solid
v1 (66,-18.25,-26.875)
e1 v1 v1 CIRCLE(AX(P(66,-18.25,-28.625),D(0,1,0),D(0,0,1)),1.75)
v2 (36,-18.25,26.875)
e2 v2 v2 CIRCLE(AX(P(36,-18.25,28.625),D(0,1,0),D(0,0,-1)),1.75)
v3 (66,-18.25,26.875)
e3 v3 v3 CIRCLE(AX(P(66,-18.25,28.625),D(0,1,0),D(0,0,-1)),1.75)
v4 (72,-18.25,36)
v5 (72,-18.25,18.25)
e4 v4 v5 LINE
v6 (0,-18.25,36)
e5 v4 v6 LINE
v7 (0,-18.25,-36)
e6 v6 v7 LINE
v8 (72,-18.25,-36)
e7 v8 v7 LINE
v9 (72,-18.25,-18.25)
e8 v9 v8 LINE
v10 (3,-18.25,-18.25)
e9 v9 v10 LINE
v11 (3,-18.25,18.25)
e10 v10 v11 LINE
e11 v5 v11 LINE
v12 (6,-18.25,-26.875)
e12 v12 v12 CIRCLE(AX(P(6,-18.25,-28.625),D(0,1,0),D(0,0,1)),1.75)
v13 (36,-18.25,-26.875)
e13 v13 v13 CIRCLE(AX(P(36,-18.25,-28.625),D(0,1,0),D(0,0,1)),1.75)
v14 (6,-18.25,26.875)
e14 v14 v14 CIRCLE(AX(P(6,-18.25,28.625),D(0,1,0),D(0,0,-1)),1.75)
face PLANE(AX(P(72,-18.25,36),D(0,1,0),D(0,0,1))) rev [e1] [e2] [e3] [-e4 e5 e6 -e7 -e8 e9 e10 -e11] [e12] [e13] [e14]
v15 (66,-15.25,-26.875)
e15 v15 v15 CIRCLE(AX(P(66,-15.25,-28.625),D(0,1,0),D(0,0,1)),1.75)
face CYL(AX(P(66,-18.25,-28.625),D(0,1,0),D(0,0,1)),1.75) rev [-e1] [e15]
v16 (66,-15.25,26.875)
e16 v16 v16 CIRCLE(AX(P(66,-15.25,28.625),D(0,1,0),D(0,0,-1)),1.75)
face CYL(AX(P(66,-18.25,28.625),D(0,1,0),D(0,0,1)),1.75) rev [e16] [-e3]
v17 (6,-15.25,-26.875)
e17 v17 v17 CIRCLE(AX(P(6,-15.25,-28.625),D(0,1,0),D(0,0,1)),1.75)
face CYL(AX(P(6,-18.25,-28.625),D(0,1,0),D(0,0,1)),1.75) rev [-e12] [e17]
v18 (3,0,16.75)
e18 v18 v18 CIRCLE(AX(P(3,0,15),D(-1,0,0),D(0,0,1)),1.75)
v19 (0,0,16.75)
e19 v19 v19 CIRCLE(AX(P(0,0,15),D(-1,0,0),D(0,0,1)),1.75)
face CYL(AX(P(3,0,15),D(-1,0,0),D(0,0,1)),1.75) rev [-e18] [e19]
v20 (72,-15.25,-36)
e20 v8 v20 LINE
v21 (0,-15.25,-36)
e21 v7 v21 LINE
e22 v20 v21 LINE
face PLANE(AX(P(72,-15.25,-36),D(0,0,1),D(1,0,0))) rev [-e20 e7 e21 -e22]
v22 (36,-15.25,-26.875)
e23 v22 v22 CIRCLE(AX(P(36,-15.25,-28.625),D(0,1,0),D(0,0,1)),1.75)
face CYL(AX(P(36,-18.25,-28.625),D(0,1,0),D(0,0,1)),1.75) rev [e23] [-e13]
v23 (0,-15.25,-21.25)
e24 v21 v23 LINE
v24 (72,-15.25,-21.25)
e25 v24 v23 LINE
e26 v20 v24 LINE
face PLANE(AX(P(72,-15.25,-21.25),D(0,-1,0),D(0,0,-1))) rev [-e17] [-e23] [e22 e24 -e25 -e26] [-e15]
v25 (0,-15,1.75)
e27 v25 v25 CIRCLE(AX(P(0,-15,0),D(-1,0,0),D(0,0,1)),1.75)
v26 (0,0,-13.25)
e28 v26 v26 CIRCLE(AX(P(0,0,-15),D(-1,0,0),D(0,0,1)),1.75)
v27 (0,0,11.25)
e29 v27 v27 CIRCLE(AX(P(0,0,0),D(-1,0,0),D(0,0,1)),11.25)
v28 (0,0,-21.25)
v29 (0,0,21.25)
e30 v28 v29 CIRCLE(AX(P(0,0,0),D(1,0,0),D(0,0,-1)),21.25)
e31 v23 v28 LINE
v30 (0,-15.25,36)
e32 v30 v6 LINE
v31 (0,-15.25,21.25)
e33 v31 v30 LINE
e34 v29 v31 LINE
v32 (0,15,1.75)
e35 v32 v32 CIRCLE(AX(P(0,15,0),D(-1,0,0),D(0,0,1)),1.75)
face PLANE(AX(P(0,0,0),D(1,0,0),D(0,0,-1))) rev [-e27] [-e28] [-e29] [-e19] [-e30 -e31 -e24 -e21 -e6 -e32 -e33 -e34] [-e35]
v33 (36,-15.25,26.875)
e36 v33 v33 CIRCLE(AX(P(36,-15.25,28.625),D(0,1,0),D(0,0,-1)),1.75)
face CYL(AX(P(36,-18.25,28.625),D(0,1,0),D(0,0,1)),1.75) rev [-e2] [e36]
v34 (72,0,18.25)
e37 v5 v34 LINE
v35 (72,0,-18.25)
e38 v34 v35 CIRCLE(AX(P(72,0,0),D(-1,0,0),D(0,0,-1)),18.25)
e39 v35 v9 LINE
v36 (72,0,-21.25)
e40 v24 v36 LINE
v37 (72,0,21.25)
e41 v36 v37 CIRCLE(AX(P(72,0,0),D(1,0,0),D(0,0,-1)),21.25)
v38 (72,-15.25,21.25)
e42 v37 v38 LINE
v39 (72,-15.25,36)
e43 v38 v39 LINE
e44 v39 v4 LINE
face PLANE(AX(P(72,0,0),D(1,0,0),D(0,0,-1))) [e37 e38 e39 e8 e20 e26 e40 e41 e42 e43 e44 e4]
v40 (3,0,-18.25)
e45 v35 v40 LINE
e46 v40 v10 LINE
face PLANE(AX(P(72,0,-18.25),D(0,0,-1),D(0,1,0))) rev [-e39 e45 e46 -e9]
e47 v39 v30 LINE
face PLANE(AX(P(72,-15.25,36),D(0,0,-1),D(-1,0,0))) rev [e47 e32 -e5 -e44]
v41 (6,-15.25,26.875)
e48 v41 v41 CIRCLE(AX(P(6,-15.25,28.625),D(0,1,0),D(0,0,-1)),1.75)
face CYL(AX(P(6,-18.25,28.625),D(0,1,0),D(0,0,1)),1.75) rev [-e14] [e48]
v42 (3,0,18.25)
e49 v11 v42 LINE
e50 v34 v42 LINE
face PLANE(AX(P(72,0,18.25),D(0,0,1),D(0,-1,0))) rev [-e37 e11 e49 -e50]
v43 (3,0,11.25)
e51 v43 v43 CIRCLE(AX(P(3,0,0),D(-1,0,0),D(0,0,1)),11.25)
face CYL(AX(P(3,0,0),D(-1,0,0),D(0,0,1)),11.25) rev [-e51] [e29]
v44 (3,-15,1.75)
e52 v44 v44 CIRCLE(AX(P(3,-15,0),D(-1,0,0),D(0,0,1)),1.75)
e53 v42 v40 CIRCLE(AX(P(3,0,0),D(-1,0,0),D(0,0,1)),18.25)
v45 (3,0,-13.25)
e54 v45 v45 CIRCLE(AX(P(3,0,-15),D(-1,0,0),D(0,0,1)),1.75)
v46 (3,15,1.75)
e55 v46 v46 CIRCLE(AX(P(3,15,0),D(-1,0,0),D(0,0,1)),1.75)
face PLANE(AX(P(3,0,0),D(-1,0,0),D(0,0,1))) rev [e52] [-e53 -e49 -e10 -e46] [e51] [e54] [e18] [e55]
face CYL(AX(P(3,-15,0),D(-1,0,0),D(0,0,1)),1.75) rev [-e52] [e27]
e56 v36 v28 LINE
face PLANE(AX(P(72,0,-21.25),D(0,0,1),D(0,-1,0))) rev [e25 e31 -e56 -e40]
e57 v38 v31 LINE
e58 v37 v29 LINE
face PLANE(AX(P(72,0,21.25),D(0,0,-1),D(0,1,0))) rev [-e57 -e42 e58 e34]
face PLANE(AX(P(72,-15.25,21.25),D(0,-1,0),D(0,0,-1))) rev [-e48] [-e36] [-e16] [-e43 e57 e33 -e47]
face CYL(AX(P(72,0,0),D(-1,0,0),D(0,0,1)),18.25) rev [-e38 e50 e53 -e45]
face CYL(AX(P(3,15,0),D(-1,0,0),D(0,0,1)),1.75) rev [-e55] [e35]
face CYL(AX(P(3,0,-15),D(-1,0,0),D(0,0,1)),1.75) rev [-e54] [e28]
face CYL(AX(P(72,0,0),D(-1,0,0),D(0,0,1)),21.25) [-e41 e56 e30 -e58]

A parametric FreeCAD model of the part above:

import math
import FreeCAD as App
import Part
import Sketcher
from FreeCAD import Vector

doc = App.newDocument("Part")
body = doc.addObject("PartDesign::Body", "Body")

# Sketch on YZ plane
sketch1 = doc.addObject("Sketcher::SketchObject", "Sketch")
body.addObject(sketch1)
sketch1.AttachmentSupport = (doc.YZ_Plane, [""])
sketch1.MapMode = "FlatFace"
sketch1.addGeometry(Part.LineSegment(Vector(0, -18.2, 0), Vector(-18.2, -18.2, 0)), False)
sketch1.addGeometry(Part.LineSegment(Vector(-18.2, -18.2, 0), Vector(-18.2, -36, 0)), False)
sketch1.addGeometry(Part.LineSegment(Vector(-18.2, -36, 0), Vector(-15.2, -36, 0)), False)
sketch1.addGeometry(Part.LineSegment(Vector(-15.2, -36, 0), Vector(-15.2, -21.2, 0)), False)
sketch1.addGeometry(Part.LineSegment(Vector(-15.2, -21.2, 0), Vector(0, -21.2, 0)), False)
sketch1.addGeometry(Part.ArcOfCircle(Part.Circle(Vector(0, 0, 0), Vector(0, 0, 1), 21.2), math.radians(-90), math.radians(90)), False)
sketch1.addGeometry(Part.LineSegment(Vector(0, 21.2, 0), Vector(-15.2, 21.2, 0)), False)
sketch1.addGeometry(Part.LineSegment(Vector(-15.2, 21.2, 0), Vector(-15.2, 36, 0)), False)
sketch1.addGeometry(Part.LineSegment(Vector(-15.2, 36, 0), Vector(-18.2, 36, 0)), False)
sketch1.addGeometry(Part.LineSegment(Vector(-18.2, 36, 0), Vector(-18.2, 18.2, 0)), False)
sketch1.addGeometry(Part.LineSegment(Vector(-18.2, 18.2, 0), Vector(0, 18.2, 0)), False)
sketch1.addGeometry(Part.ArcOfCircle(Part.Circle(Vector(0, 0, 0), Vector(0, 0, 1), 18.2), math.radians(-90), math.radians(90)), False)
sketch1.addConstraint(Sketcher.Constraint("Coincident", 0, 2, 1, 1))
sketch1.addConstraint(Sketcher.Constraint("Coincident", 1, 2, 2, 1))
sketch1.addConstraint(Sketcher.Constraint("Coincident", 2, 2, 3, 1))
sketch1.addConstraint(Sketcher.Constraint("Coincident", 3, 2, 4, 1))
sketch1.addConstraint(Sketcher.Constraint("Tangent", 4, 2, 5, 1))
sketch1.addConstraint(Sketcher.Constraint("Tangent", 5, 2, 6, 1))
sketch1.addConstraint(Sketcher.Constraint("Coincident", 6, 2, 7, 1))
sketch1.addConstraint(Sketcher.Constraint("Coincident", 7, 2, 8, 1))
sketch1.addConstraint(Sketcher.Constraint("Coincident", 8, 2, 9, 1))
sketch1.addConstraint(Sketcher.Constraint("Coincident", 9, 2, 10, 1))
sketch1.addConstraint(Sketcher.Constraint("Tangent", 10, 2, 11, 2))
sketch1.addConstraint(Sketcher.Constraint("Tangent", 11, 1, 0, 1))
sketch1.addConstraint(Sketcher.Constraint("Horizontal", 0))
sketch1.addConstraint(Sketcher.Constraint("Vertical", 1))
sketch1.addConstraint(Sketcher.Constraint("Horizontal", 2))
sketch1.addConstraint(Sketcher.Constraint("Vertical", 3))
sketch1.addConstraint(Sketcher.Constraint("Horizontal", 4))
sketch1.addConstraint(Sketcher.Constraint("Horizontal", 6))
sketch1.addConstraint(Sketcher.Constraint("Vertical", 7))
sketch1.addConstraint(Sketcher.Constraint("Horizontal", 8))
sketch1.addConstraint(Sketcher.Constraint("Vertical", 9))
sketch1.addConstraint(Sketcher.Constraint("Horizontal", 10))
sketch1.addConstraint(Sketcher.Constraint("Coincident", 5, 3, -1, 1))
sketch1.addConstraint(Sketcher.Constraint("Coincident", 11, 3, -1, 1))
sketch1.addConstraint(Sketcher.Constraint("Symmetric", 2, 2, 7, 2, -1))
sketch1.addConstraint(Sketcher.Constraint("Vertical", 1, 2, 8, 2))
sketch1.addConstraint(Sketcher.Constraint("DistanceX", 2, 1, 2, 2, 3.0))
sketch1.addConstraint(Sketcher.Constraint("Radius", 5, 21.25))
sketch1.addConstraint(Sketcher.Constraint("Radius", 11, 18.25))
sketch1.addConstraint(Sketcher.Constraint("DistanceY", 1, 2, -1, 1, 36.0))
sketch1.addConstraint(Sketcher.Constraint("DistanceX", 0, 2, 0, 1, 18.25))
pad1 = doc.addObject("PartDesign::Pad", "Pad")
body.addObject(pad1)
pad1.Profile = sketch1
pad1.Length = 72

# Sketch on YZ plane
sketch2 = doc.addObject("Sketcher::SketchObject", "Sketch001")
body.addObject(sketch2)
sketch2.AttachmentSupport = (doc.YZ_Plane, [""])
sketch2.MapMode = "FlatFace"
sketch2.addGeometry(Part.LineSegment(Vector(-18.2, -18.2, 0), Vector(-18.2, 18.2, 0)), False)
sketch2.addGeometry(Part.LineSegment(Vector(-18.2, 18.2, 0), Vector(0, 18.2, 0)), False)
sketch2.addGeometry(Part.ArcOfCircle(Part.Circle(Vector(0, 0, 0), Vector(0, 0, 1), 18.2), math.radians(-90), math.radians(90)), False)
sketch2.addGeometry(Part.LineSegment(Vector(0, -18.2, 0), Vector(-18.2, -18.2, 0)), False)
sketch2.addGeometry(Part.Circle(Vector(-15, 0, 0), Vector(0, 0, 1), 1.8), False)
sketch2.addGeometry(Part.Circle(Vector(0, -15, 0), Vector(0, 0, 1), 1.8), False)
sketch2.addGeometry(Part.Circle(Vector(0, 0, 0), Vector(0, 0, 1), 11.2), False)
sketch2.addGeometry(Part.Circle(Vector(0, 15, 0), Vector(0, 0, 1), 1.8), False)
sketch2.addGeometry(Part.Circle(Vector(15, 0, 0), Vector(0, 0, 1), 1.8), False)
sketch2.addConstraint(Sketcher.Constraint("Coincident", 0, 2, 1, 1))
sketch2.addConstraint(Sketcher.Constraint("Tangent", 1, 2, 2, 2))
sketch2.addConstraint(Sketcher.Constraint("Tangent", 2, 1, 3, 1))
sketch2.addConstraint(Sketcher.Constraint("Coincident", 3, 2, 0, 1))
sketch2.addConstraint(Sketcher.Constraint("Vertical", 0))
sketch2.addConstraint(Sketcher.Constraint("Horizontal", 1))
sketch2.addConstraint(Sketcher.Constraint("Horizontal", 3))
sketch2.addConstraint(Sketcher.Constraint("Coincident", 2, 3, -1, 1))
sketch2.addConstraint(Sketcher.Constraint("Coincident", 6, 3, -1, 1))
sketch2.addConstraint(Sketcher.Constraint("Equal", 4, 5))
sketch2.addConstraint(Sketcher.Constraint("Equal", 5, 7))
sketch2.addConstraint(Sketcher.Constraint("Equal", 7, 8))
sketch2.addConstraint(Sketcher.Constraint("Symmetric", 5, 3, 7, 3, -1, 1))
sketch2.addConstraint(Sketcher.Constraint("Symmetric", 4, 3, 8, 3, -1, 1))
sketch2.addConstraint(Sketcher.Constraint("PointOnObject", 4, 3, -1))
sketch2.addConstraint(Sketcher.Constraint("PointOnObject", 5, 3, -2))
sketch2.addConstraint(Sketcher.Constraint("Diameter", 4, 3.5))
sketch2.addConstraint(Sketcher.Constraint("Diameter", 6, 22.5))
sketch2.addConstraint(Sketcher.Constraint("Radius", 2, 18.25))
sketch2.addConstraint(Sketcher.Constraint("DistanceX", 4, 3, -1, 1, 15.0))
sketch2.addConstraint(Sketcher.Constraint("DistanceY", 5, 3, -1, 1, 15.0))
sketch2.addConstraint(Sketcher.Constraint("DistanceX", 1, 1, 1, 2, 18.25))
pad2 = doc.addObject("PartDesign::Pad", "Pad001")
body.addObject(pad2)
pad2.Profile = sketch2
pad2.Length = 3

# Sketch on XZ plane
sketch3 = doc.addObject("Sketcher::SketchObject", "Sketch002")
body.addObject(sketch3)
sketch3.AttachmentSupport = (doc.XZ_Plane, [""])
sketch3.MapMode = "FlatFace"
sketch3.AttachmentOffset = App.Placement(Vector(0, 0, 15.25), App.Rotation())
sketch3.addGeometry(Part.Circle(Vector(36, -28.6, 0), Vector(0, 0, 1), 1.8), False)
sketch3.addGeometry(Part.Circle(Vector(6, -28.6, 0), Vector(0, 0, 1), 1.8), False)
sketch3.addGeometry(Part.Circle(Vector(66, -28.6, 0), Vector(0, 0, 1), 1.8), False)
sketch3.addGeometry(Part.Circle(Vector(66, 28.6, 0), Vector(0, 0, 1), 1.8), False)
sketch3.addGeometry(Part.Circle(Vector(36, 28.6, 0), Vector(0, 0, 1), 1.8), False)
sketch3.addGeometry(Part.Circle(Vector(6, 28.6, 0), Vector(0, 0, 1), 1.8), False)
sketch3.addConstraint(Sketcher.Constraint("Equal", 0, 1))
sketch3.addConstraint(Sketcher.Constraint("Equal", 1, 2))
sketch3.addConstraint(Sketcher.Constraint("Equal", 2, 3))
sketch3.addConstraint(Sketcher.Constraint("Equal", 3, 4))
sketch3.addConstraint(Sketcher.Constraint("Equal", 4, 5))
sketch3.addConstraint(Sketcher.Constraint("Symmetric", 2, 3, 3, 3, -1))
sketch3.addConstraint(Sketcher.Constraint("Symmetric", 0, 3, 4, 3, -1))
sketch3.addConstraint(Sketcher.Constraint("Symmetric", 1, 3, 5, 3, -1))
sketch3.addConstraint(Sketcher.Constraint("Horizontal", 0, 3, 1, 3))
sketch3.addConstraint(Sketcher.Constraint("Horizontal", 1, 3, 2, 3))
sketch3.addConstraint(Sketcher.Constraint("Diameter", 0, 3.5))
sketch3.addConstraint(Sketcher.Constraint("DistanceX", -1, 1, 0, 3, 36.0))
sketch3.addConstraint(Sketcher.Constraint("DistanceX", -1, 1, 1, 3, 6.0))
sketch3.addConstraint(Sketcher.Constraint("DistanceX", -1, 1, 2, 3, 66.0))
sketch3.addConstraint(Sketcher.Constraint("DistanceY", 2, 3, 3, 3, 57.25))
pocket1 = doc.addObject("PartDesign::Pocket", "Pocket")
body.addObject(pocket1)
pocket1.Profile = sketch3
pocket1.Type = "ThroughAll"
pocket1.Reversed = True

doc.recompute()
